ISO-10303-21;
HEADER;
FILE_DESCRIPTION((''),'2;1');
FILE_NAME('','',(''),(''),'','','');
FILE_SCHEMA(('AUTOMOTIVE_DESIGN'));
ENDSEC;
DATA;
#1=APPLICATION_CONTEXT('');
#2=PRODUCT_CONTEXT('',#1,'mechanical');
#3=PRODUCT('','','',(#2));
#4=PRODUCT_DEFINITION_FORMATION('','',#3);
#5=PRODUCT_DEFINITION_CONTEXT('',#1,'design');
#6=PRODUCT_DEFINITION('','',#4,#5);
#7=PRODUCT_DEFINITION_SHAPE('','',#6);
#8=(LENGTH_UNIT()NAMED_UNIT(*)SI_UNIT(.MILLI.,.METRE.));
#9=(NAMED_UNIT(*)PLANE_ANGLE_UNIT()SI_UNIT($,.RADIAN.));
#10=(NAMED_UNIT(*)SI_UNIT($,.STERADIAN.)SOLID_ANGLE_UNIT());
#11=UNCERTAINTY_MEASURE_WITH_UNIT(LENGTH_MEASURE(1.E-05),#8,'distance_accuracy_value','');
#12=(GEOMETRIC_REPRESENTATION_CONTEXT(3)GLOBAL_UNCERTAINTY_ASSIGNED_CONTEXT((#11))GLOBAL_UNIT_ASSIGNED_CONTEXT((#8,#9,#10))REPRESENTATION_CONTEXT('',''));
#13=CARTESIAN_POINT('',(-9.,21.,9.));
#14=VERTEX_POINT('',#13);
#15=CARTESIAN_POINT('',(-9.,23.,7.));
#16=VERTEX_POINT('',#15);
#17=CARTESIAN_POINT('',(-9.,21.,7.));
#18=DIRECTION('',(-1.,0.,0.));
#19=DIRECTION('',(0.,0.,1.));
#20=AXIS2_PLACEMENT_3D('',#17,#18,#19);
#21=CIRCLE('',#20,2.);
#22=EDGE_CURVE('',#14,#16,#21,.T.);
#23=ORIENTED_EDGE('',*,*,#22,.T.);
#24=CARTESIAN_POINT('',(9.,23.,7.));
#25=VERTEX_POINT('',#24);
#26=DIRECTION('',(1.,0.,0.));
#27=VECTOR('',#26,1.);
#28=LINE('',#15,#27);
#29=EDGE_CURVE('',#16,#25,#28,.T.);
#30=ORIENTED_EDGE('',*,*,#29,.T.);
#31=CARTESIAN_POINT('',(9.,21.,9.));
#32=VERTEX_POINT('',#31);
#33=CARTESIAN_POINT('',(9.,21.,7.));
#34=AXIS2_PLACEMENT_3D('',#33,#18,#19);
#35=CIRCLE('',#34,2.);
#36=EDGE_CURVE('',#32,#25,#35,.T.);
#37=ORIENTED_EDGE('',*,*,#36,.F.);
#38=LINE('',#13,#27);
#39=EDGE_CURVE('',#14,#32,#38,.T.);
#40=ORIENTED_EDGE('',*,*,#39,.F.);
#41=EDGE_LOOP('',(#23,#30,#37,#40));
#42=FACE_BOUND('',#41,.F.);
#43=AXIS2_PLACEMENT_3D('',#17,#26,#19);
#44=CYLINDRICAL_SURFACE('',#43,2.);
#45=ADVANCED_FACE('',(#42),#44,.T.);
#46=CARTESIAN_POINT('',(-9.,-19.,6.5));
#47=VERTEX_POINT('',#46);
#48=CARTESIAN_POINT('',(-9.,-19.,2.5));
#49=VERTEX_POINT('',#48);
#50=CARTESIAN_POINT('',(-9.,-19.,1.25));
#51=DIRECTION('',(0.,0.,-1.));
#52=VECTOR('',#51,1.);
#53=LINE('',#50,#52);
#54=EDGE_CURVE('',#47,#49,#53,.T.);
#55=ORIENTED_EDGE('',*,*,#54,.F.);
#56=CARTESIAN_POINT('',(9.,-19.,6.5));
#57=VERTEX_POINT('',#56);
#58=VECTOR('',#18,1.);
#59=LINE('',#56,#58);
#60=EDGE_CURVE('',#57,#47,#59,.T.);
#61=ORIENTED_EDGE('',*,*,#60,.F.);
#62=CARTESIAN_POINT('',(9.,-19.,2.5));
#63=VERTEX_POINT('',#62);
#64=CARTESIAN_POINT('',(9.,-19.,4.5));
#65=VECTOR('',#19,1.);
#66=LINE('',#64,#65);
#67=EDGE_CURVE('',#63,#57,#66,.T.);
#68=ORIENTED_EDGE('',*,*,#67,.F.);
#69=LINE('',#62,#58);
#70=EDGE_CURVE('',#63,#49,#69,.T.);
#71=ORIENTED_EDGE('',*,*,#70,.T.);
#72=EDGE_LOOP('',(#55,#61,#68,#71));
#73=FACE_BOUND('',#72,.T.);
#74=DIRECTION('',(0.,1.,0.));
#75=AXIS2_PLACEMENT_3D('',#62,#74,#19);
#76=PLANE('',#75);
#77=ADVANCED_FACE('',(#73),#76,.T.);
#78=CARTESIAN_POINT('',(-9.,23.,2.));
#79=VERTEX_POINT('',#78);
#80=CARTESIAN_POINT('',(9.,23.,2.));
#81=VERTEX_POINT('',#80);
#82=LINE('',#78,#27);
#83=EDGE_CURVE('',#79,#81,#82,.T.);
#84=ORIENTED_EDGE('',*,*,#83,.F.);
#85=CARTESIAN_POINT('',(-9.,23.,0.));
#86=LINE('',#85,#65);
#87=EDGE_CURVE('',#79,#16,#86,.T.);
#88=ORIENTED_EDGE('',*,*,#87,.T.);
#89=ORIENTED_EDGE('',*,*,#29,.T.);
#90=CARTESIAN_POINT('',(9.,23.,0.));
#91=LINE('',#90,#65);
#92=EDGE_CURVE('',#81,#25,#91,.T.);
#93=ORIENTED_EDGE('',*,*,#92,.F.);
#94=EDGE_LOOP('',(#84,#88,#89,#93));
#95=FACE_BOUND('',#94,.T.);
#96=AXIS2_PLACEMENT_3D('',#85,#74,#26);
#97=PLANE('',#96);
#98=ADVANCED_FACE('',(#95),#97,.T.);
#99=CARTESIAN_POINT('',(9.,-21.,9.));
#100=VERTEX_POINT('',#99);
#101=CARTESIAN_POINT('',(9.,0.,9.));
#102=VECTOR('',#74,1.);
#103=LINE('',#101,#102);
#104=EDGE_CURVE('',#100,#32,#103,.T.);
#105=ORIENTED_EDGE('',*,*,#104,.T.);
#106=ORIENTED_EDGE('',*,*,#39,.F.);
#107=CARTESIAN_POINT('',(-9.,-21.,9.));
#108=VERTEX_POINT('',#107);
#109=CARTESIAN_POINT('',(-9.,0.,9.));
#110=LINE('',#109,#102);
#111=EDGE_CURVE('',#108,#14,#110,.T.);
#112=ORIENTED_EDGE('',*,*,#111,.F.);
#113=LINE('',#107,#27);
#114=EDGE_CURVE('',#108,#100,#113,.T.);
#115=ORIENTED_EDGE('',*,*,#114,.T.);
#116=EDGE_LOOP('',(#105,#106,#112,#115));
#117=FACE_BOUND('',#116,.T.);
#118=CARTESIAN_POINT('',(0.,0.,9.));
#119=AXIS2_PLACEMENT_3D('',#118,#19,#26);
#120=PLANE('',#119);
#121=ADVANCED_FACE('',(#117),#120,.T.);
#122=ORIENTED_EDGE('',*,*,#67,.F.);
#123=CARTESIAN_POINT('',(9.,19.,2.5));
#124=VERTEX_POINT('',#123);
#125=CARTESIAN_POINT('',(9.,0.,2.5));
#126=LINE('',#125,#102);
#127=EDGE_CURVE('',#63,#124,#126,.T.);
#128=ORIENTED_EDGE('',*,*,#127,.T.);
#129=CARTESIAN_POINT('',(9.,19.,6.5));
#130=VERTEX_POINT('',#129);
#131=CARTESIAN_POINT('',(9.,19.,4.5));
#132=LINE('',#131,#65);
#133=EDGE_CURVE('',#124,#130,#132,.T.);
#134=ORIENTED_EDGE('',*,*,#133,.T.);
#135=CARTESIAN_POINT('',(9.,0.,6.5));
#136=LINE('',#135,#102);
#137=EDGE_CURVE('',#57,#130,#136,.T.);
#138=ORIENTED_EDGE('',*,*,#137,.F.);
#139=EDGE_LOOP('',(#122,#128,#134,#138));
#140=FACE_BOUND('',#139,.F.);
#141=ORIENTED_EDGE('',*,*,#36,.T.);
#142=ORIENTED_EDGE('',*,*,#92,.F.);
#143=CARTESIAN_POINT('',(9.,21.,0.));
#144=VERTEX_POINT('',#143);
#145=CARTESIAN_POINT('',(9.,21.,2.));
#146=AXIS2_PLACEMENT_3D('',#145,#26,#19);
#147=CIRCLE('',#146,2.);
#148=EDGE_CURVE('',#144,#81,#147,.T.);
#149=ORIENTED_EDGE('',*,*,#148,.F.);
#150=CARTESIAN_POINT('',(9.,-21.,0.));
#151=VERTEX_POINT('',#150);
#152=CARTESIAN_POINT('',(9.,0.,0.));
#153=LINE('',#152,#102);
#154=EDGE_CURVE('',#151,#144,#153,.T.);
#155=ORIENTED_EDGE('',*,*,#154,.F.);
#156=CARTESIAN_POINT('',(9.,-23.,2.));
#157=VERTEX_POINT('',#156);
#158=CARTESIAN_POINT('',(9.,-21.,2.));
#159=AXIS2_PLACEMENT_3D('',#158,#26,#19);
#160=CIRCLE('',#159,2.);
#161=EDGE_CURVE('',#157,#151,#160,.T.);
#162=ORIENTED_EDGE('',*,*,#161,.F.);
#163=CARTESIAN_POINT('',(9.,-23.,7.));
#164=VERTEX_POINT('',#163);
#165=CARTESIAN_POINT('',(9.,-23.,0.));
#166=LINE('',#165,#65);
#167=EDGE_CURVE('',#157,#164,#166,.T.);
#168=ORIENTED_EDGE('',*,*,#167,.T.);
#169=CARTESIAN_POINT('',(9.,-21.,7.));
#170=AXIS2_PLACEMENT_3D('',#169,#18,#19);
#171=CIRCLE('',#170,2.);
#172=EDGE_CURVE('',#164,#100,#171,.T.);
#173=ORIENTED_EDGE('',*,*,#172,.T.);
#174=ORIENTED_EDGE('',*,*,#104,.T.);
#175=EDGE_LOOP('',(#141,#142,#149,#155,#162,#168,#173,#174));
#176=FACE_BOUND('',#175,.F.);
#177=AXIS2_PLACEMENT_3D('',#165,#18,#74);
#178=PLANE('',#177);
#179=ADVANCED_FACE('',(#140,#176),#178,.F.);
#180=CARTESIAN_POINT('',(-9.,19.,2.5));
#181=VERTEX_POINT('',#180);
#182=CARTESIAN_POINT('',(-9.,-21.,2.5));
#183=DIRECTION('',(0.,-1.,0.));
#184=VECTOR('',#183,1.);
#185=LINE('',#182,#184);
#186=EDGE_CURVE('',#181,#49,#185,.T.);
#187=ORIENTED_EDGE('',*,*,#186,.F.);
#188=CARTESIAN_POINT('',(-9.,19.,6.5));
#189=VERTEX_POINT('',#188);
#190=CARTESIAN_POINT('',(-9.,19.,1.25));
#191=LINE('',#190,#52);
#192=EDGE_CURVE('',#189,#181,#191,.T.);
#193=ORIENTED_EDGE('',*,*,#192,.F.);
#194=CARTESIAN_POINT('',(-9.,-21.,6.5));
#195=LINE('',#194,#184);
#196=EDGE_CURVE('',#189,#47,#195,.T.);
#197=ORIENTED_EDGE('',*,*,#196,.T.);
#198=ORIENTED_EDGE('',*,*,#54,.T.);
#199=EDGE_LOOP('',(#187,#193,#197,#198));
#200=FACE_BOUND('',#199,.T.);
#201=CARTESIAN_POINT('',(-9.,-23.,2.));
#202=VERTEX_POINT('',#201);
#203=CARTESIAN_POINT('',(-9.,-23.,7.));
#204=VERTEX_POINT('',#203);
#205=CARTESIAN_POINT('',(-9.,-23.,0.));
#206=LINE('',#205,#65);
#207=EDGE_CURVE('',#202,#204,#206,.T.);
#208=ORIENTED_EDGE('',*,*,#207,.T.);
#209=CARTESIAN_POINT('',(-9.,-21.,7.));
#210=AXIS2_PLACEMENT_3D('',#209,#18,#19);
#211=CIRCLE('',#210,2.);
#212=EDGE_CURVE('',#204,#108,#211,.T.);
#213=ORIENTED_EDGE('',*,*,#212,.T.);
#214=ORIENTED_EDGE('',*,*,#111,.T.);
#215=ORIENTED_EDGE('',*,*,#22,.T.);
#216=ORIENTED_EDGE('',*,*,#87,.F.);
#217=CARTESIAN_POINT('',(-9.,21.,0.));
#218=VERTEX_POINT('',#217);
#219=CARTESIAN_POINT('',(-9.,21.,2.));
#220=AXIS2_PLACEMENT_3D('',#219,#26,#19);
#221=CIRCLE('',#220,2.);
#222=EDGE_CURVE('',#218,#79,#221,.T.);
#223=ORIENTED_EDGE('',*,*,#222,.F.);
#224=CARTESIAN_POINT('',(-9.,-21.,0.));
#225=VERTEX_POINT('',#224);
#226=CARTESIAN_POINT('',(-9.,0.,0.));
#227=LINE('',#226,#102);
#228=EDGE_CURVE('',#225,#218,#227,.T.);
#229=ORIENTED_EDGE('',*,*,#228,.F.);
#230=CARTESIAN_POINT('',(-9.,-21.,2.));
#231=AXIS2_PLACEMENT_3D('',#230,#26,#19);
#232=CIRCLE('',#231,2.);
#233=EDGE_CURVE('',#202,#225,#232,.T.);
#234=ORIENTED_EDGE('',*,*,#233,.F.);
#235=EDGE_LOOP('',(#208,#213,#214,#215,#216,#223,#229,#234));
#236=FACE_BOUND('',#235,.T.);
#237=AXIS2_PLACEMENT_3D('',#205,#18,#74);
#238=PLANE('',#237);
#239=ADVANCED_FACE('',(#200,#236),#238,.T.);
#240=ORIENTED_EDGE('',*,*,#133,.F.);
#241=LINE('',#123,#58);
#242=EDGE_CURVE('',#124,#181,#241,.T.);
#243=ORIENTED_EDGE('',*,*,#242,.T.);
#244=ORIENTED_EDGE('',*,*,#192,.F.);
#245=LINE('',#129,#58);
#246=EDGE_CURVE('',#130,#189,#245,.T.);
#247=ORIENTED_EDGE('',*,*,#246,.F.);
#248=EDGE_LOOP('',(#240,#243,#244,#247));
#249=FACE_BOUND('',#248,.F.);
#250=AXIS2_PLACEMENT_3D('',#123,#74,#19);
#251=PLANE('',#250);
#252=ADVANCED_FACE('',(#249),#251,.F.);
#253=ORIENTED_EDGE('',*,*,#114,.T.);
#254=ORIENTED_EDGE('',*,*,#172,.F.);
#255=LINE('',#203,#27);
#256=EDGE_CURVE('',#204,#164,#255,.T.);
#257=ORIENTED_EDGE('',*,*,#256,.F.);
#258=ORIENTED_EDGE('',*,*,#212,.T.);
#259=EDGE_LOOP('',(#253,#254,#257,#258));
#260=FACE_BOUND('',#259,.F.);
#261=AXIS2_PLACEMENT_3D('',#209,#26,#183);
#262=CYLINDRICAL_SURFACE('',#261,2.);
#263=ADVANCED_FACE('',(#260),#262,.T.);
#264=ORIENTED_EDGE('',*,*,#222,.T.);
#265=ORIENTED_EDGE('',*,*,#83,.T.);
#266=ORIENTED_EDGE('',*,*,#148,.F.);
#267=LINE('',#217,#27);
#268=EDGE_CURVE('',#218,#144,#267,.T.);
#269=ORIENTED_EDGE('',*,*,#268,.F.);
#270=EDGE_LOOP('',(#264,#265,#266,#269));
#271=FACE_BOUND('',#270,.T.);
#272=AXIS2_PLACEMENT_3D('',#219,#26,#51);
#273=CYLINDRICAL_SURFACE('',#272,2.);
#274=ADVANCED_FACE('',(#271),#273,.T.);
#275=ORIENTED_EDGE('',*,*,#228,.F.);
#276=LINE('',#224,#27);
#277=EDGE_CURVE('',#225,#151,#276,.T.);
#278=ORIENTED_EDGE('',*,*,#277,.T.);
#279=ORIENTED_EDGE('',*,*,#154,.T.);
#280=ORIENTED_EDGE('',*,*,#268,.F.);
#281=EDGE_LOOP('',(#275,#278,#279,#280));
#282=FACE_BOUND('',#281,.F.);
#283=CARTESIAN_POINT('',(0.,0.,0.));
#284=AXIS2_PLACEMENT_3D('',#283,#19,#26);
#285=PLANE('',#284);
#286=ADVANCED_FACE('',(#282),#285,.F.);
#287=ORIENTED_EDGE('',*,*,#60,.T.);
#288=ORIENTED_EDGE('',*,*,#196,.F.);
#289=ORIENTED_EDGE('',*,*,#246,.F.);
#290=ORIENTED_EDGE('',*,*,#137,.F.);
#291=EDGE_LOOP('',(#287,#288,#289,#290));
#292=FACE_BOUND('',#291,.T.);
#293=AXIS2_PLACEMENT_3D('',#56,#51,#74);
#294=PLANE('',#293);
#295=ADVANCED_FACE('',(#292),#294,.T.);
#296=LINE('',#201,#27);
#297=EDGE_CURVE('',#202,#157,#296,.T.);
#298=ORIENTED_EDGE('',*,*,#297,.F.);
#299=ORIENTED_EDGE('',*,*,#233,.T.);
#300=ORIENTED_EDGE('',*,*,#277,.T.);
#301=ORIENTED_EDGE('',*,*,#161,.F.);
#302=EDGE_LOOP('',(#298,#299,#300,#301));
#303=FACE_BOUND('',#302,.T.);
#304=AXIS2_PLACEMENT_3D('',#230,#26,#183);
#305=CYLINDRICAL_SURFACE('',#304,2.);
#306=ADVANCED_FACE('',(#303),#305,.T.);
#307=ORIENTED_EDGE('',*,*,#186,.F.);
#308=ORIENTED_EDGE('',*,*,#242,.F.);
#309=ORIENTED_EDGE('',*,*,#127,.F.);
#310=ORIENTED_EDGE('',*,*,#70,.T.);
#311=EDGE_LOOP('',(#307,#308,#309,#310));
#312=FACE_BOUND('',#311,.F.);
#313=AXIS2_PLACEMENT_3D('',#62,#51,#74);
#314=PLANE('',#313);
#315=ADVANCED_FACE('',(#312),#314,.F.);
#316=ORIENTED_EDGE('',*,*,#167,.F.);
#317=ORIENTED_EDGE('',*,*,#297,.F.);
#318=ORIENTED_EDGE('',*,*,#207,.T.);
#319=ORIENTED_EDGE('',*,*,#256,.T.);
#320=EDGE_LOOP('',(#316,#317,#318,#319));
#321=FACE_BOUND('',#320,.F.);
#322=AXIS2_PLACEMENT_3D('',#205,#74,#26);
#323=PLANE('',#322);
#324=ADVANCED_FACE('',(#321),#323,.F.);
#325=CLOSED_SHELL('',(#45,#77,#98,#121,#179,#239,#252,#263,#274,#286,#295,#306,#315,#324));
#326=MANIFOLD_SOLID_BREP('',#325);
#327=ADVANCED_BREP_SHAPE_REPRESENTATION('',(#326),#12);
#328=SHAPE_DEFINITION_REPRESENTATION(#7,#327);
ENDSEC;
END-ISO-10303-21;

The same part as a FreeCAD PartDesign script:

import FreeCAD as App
import Part
import Sketcher

V = App.Vector
Q = App.Units.Quantity


def edges_at(feature, points):
    """Names of the edges that pass closest to the given points."""
    edges = feature.Shape.Edges
    near = lambda p: min(range(len(edges)), key=lambda i: edges[i].distToShape(Part.Vertex(*p))[0])
    return sorted({f"Edge{near(p) + 1}" for p in points})

doc = App.newDocument("Part")
body = doc.addObject("PartDesign::Body", "Body")

sketch1 = doc.addObject("Sketcher::SketchObject", "Sketch")
body.addObject(sketch1)
sketch1.AttachmentSupport = (doc.XY_Plane, [""])
sketch1.MapMode = "FlatFace"
sketch1.addGeometry(Part.LineSegment(V(-9, 23, 0), V(-9, -23, 0)), False)
sketch1.addGeometry(Part.LineSegment(V(-9, -23, 0), V(9, -23, 0)), False)
sketch1.addGeometry(Part.LineSegment(V(9, -23, 0), V(9, 23, 0)), False)
sketch1.addGeometry(Part.LineSegment(V(9, 23, 0), V(-9, 23, 0)), False)
sketch1.addConstraint(Sketcher.Constraint("Coincident", 0, 2, 1, 1))
sketch1.addConstraint(Sketcher.Constraint("Coincident", 1, 2, 2, 1))
sketch1.addConstraint(Sketcher.Constraint("Coincident", 2, 2, 3, 1))
sketch1.addConstraint(Sketcher.Constraint("Coincident", 3, 2, 0, 1))
sketch1.addConstraint(Sketcher.Constraint("Vertical", 0))
sketch1.addConstraint(Sketcher.Constraint("Horizontal", 1))
sketch1.addConstraint(Sketcher.Constraint("Vertical", 2))
sketch1.addConstraint(Sketcher.Constraint("Horizontal", 3))
sketch1.addConstraint(Sketcher.Constraint("Symmetric", 0, 2, 2, 2, -1, 1))
sketch1.addConstraint(Sketcher.Constraint("DistanceX", 1, 1, 1, 2, Q("18 mm")))
sketch1.addConstraint(Sketcher.Constraint("DistanceY", 0, 2, 0, 1, Q("46 mm")))
pad1 = doc.addObject("PartDesign::Pad", "Pad")
body.addObject(pad1)
pad1.Profile = sketch1
pad1.Length = 9

sketch2 = doc.addObject("Sketcher::SketchObject", "Sketch001")
body.addObject(sketch2)
sketch2.AttachmentSupport = (doc.YZ_Plane, [""])
sketch2.MapMode = "FlatFace"
sketch2.AttachmentOffset = App.Placement(V(0, 0, 9), App.Rotation())
sketch2.addGeometry(Part.LineSegment(V(-19, 6.5, 0), V(-19, 2.5, 0)), False)
sketch2.addGeometry(Part.LineSegment(V(-19, 2.5, 0), V(19, 2.5, 0)), False)
sketch2.addGeometry(Part.LineSegment(V(19, 2.5, 0), V(19, 6.5, 0)), False)
sketch2.addGeometry(Part.LineSegment(V(19, 6.5, 0), V(-19, 6.5, 0)), False)
sketch2.addConstraint(Sketcher.Constraint("Coincident", 0, 2, 1, 1))
sketch2.addConstraint(Sketcher.Constraint("Coincident", 1, 2, 2, 1))
sketch2.addConstraint(Sketcher.Constraint("Coincident", 2, 2, 3, 1))
sketch2.addConstraint(Sketcher.Constraint("Coincident", 3, 2, 0, 1))
sketch2.addConstraint(Sketcher.Constraint("Vertical", 0))
sketch2.addConstraint(Sketcher.Constraint("Horizontal", 1))
sketch2.addConstraint(Sketcher.Constraint("Vertical", 2))
sketch2.addConstraint(Sketcher.Constraint("Horizontal", 3))
sketch2.addConstraint(Sketcher.Constraint("DistanceX", 1, 1, 1, 2, Q("38 mm")))
sketch2.addConstraint(Sketcher.Constraint("DistanceY", 0, 2, 0, 1, Q("4 mm")))
sketch2.addConstraint(Sketcher.Constraint("DistanceX", 0, 2, -1, 1, Q("19 mm")))
sketch2.addConstraint(Sketcher.Constraint("DistanceY", -1, 1, 0, 2, Q("2.5 mm")))
pocket1 = doc.addObject("PartDesign::Pocket", "Pocket")
body.addObject(pocket1)
pocket1.Profile = sketch2
pocket1.Type = "ThroughAll"
doc.recompute()

fillet = doc.addObject("PartDesign::Fillet", "Fillet")
body.addObject(fillet)
fillet.Base = (pocket1, edges_at(pocket1, [
    (0, -23, 9),
    (0, -23, 0),
    (0, 23, 9),
    (0, 23, 0),
]))
fillet.Radius = 2

doc.recompute()
